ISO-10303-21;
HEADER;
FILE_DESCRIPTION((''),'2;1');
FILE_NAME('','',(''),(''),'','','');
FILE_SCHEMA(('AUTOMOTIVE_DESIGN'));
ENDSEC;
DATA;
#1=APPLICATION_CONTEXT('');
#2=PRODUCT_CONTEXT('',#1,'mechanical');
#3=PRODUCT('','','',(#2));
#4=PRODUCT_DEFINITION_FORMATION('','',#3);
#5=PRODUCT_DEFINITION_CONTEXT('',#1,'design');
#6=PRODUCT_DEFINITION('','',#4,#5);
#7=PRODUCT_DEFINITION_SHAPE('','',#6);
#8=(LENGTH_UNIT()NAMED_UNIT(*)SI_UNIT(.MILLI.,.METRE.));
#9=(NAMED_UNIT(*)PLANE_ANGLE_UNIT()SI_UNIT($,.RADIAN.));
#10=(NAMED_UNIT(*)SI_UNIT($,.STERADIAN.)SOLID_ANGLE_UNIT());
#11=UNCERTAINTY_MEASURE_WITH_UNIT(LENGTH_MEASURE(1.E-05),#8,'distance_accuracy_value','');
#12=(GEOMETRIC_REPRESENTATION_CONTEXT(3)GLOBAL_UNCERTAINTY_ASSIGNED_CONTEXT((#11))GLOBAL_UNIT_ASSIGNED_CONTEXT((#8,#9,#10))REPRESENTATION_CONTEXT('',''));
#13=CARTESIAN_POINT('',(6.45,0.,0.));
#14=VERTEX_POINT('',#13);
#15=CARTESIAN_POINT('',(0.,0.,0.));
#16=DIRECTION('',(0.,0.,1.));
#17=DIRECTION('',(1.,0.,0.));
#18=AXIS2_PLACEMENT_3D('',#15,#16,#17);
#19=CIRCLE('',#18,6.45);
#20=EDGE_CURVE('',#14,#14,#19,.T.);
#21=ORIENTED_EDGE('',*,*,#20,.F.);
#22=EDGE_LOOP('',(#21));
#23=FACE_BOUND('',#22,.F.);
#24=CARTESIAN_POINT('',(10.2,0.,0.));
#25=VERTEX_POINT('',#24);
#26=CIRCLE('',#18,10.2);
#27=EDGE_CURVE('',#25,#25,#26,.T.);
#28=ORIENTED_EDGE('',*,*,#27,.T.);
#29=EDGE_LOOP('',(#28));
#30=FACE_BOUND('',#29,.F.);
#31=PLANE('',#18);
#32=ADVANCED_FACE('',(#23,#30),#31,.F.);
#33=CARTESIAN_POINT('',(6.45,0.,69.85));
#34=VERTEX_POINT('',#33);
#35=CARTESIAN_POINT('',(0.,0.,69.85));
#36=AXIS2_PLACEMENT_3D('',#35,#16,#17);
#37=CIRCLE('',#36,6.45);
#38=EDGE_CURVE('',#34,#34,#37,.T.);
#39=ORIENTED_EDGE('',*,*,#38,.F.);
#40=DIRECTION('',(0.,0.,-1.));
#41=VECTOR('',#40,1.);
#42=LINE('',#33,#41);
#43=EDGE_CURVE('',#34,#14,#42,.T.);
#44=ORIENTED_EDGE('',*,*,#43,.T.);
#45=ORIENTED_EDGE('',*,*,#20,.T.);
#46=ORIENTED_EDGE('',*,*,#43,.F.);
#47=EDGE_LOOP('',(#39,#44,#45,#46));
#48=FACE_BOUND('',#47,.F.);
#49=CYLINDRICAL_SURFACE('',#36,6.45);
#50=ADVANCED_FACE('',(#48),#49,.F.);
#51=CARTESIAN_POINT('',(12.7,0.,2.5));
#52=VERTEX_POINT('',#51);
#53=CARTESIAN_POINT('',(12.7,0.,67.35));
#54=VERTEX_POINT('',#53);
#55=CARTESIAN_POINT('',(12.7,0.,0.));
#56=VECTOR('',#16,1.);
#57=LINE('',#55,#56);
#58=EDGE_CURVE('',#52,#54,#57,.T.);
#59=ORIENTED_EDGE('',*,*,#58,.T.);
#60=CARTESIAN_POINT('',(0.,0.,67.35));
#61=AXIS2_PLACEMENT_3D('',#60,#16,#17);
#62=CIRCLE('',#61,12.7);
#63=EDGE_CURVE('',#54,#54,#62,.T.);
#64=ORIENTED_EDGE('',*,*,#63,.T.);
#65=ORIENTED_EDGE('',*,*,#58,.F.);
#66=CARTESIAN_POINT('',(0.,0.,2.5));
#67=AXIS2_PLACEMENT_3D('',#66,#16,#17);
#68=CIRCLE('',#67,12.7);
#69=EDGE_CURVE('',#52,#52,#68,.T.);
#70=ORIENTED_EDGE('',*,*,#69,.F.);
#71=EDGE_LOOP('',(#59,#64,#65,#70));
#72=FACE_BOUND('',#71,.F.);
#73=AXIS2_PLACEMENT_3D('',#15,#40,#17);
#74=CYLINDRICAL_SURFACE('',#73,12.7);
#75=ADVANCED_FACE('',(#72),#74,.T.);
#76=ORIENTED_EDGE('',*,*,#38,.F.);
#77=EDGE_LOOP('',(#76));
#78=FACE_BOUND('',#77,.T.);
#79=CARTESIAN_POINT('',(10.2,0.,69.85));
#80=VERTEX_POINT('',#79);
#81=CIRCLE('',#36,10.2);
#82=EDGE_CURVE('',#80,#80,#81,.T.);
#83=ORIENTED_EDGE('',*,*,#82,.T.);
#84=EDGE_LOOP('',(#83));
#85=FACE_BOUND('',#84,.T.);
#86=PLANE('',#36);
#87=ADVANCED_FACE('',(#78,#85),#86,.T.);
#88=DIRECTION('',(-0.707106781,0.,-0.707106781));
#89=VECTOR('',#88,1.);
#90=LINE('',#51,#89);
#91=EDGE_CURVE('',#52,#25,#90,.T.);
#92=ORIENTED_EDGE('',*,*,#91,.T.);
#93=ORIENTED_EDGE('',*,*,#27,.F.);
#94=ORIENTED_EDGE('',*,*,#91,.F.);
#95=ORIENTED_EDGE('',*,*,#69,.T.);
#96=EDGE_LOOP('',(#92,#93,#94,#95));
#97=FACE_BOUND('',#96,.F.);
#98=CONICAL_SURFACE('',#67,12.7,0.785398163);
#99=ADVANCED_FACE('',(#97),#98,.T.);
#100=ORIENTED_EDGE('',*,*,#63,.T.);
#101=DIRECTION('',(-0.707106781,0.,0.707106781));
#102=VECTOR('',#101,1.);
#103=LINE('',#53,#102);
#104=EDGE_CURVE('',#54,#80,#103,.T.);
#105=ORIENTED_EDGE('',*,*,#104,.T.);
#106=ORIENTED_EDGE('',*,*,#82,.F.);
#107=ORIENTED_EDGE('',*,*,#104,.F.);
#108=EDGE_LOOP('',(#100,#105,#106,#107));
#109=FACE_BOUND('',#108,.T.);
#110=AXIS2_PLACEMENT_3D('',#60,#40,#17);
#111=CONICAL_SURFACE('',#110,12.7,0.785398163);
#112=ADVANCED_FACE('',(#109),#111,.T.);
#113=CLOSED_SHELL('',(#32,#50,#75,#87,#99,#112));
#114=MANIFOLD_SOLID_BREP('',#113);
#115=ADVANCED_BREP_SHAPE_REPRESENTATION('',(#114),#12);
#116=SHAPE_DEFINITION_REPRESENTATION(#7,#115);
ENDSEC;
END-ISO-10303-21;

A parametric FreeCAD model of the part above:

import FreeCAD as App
import Part
import Sketcher
Q = App.Units.Quantity


def edges_at(feature, points):
    """Names of the edges that pass closest to the given points."""
    edges = feature.Shape.Edges
    near = lambda p: min(range(len(edges)), key=lambda i: edges[i].distToShape(Part.Vertex(*p))[0])
    return sorted({f"Edge{near(p) + 1}" for p in points})

doc = App.newDocument("Part")
params = doc.addObject("Spreadsheet::Sheet", "Params")
for row, (alias, value) in enumerate([
    ("sketch1_diameter", "25.4 mm"),
    ("pad1_length", "69.85 mm"),
    ("sketch2_diameter", "12.9 mm"),
    ("chamfer_size", "2.5 mm"),
], start=1):
    params.set(f"A{row}", alias)
    params.set(f"B{row}", "=" + value)
    params.setAlias(f"B{row}", alias)

body = doc.addObject("PartDesign::Body", "Body")

# Sketch on XY plane
sketch1 = doc.addObject("Sketcher::SketchObject", "Sketch")
body.addObject(sketch1)
sketch1.AttachmentSupport = (doc.XY_Plane, [""])
sketch1.MapMode = "FlatFace"
sketch1.addGeometry(Part.Circle(App.Vector(0, 0, 0), App.Vector(0, 0, 1), 13), False)
sketch1.addConstraint(Sketcher.Constraint("Coincident", 0, 3, -1, 1))
sketch1.addConstraint(Sketcher.Constraint("Diameter", 0, Q("25.4 mm")))
sketch1.setExpression("Constraints[1]", "Params.sketch1_diameter")
pad1 = doc.addObject("PartDesign::Pad", "Pad")
body.addObject(pad1)
pad1.Profile = sketch1
pad1.setExpression("Length", "Params.pad1_length")

# Sketch on XY plane
sketch2 = doc.addObject("Sketcher::SketchObject", "Sketch001")
body.addObject(sketch2)
sketch2.AttachmentSupport = (doc.XY_Plane, [""])
sketch2.MapMode = "FlatFace"
sketch2.AttachmentOffset = App.Placement(App.Vector(0, 0, 69.85), App.Rotation())
sketch2.addGeometry(Part.Circle(App.Vector(0, 0, 0), App.Vector(0, 0, 1), 6), False)
sketch2.addConstraint(Sketcher.Constraint("Coincident", 0, 3, -1, 1))
sketch2.addConstraint(Sketcher.Constraint("Diameter", 0, Q("12.9 mm")))
sketch2.setExpression("Constraints[1]", "Params.sketch2_diameter")
pocket1 = doc.addObject("PartDesign::Pocket", "Pocket")
body.addObject(pocket1)
pocket1.Profile = sketch2
pocket1.Type = "ThroughAll"
pocket1.Midplane = True
doc.recompute()

chamfer = doc.addObject("PartDesign::Chamfer", "Chamfer")
body.addObject(chamfer)
chamfer.Base = (pocket1, edges_at(pocket1, [(-12.7, 0, 0), (-12.7, 0, 69.85)]))
chamfer.setExpression("Size", "Params.chamfer_size")

doc.recompute()
